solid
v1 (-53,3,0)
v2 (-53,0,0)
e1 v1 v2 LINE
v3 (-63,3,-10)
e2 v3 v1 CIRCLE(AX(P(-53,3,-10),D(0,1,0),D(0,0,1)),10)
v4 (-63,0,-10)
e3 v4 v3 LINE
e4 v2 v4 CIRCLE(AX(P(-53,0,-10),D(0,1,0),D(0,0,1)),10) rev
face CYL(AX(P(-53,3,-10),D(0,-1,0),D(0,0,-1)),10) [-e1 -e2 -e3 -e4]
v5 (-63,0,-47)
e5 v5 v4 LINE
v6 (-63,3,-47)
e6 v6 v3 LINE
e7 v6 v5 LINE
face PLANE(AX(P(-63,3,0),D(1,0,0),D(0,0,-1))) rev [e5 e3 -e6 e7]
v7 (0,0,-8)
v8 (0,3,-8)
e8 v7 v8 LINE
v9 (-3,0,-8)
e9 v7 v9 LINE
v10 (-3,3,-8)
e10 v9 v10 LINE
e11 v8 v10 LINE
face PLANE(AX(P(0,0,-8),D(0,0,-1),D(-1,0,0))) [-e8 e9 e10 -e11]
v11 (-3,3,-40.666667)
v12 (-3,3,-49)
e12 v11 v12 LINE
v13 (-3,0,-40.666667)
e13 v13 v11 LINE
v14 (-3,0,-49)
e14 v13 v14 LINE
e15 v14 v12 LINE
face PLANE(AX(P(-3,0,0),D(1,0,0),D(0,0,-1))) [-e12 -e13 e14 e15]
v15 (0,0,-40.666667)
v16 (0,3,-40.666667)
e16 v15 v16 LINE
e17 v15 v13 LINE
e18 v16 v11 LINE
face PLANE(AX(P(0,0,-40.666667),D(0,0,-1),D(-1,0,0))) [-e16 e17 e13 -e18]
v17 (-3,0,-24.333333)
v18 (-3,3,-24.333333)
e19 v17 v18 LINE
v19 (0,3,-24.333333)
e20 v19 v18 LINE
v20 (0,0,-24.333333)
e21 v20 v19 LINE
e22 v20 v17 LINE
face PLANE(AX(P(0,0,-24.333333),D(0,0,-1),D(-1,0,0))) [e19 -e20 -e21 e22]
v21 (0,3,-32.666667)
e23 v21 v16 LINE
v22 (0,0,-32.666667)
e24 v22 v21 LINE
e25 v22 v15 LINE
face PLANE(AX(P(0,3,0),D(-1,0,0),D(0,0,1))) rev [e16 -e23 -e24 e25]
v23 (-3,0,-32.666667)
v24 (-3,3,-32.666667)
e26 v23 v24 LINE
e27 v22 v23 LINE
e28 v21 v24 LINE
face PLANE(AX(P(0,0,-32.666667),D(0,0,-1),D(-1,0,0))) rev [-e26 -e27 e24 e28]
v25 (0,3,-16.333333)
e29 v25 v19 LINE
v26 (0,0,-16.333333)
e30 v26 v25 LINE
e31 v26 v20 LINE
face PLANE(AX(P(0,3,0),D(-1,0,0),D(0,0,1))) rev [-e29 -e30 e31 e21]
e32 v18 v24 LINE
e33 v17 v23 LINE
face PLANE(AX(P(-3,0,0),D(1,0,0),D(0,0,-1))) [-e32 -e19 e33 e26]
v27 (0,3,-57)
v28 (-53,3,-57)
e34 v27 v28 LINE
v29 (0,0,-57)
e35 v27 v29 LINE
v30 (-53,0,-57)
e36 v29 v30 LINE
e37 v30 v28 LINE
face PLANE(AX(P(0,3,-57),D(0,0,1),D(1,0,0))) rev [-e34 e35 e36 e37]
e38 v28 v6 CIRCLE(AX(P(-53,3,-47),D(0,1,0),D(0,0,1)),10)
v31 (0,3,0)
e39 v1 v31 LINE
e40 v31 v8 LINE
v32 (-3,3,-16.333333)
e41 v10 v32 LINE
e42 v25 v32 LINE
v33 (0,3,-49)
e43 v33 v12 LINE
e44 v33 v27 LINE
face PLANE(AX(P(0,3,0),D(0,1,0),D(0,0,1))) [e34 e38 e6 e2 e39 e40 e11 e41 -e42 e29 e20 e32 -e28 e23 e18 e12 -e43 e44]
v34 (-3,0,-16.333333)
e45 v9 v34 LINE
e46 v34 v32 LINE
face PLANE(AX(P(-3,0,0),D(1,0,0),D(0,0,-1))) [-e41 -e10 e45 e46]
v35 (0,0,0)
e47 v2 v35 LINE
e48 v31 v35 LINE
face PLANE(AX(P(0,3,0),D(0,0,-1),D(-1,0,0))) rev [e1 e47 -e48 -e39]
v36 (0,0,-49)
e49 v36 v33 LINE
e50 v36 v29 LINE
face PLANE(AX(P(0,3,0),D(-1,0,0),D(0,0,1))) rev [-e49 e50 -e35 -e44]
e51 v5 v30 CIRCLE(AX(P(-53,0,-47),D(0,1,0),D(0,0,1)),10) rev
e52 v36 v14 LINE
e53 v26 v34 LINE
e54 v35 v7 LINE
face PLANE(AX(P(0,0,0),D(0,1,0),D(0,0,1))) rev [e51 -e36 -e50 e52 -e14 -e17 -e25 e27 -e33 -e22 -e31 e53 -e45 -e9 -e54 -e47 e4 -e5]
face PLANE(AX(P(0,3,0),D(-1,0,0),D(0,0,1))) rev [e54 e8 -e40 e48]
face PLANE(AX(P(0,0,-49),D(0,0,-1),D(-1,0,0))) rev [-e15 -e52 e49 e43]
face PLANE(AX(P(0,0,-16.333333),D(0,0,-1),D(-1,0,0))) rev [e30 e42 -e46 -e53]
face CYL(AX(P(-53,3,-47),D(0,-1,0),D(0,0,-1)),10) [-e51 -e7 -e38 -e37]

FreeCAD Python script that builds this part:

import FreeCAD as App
import Part
import Sketcher
Q = App.Units.Quantity


def edges_at(feature, points):
    """Names of the edges that pass closest to the given points."""
    edges = feature.Shape.Edges
    near = lambda p: min(range(len(edges)), key=lambda i: edges[i].distToShape(Part.Vertex(*p))[0])
    return sorted({f"Edge{near(p) + 1}" for p in points})


def add_polygon(sketch, points):
    """Adds a closed chain of lines whose ends are joined by coincident constraints."""
    first, n = sketch.GeometryCount, len(points)
    for a, b in zip(points, points[1:] + points[:1]):
        sketch.addGeometry(Part.LineSegment(App.Vector(*a, 0), App.Vector(*b, 0)), False)
    for i in range(n):
        sketch.addConstraint(Sketcher.Constraint("Coincident", first + i, 2, first + (i + 1) % n, 1))

doc = App.newDocument("Part")
body = doc.addObject("PartDesign::Body", "Body")

# Sketch on XZ plane
sketch1 = doc.addObject("Sketcher::SketchObject", "Sketch")
body.addObject(sketch1)
sketch1.AttachmentSupport = (doc.XZ_Plane, [""])
sketch1.MapMode = "FlatFace"
add_polygon(sketch1, [(-63, -57), (-63, 0), (0, 0), (0, -57)])  # lines 0-3
sketch1.addConstraint([
    Sketcher.Constraint("Vertical", 0),
    Sketcher.Constraint("Horizontal", 1),
    Sketcher.Constraint("Vertical", 2),
    Sketcher.Constraint("Horizontal", 3),
    Sketcher.Constraint("Coincident", 1, 2, -1, 1),
    Sketcher.Constraint("DistanceX", 1, 1, 1, 2, Q("63 mm")),
    Sketcher.Constraint("DistanceY", 0, 1, 0, 2, Q("57 mm")),
])
pad1 = doc.addObject("PartDesign::Pad", "Pad")
body.addObject(pad1)
pad1.Profile = sketch1
pad1.Length = 3
pad1.Reversed = True

# Sketch on XZ plane
sketch2 = doc.addObject("Sketcher::SketchObject", "Sketch001")
body.addObject(sketch2)
sketch2.AttachmentSupport = (doc.XZ_Plane, [""])
sketch2.MapMode = "FlatFace"
sketch2.AttachmentOffset = App.Placement(App.Vector(0, 0, -3), App.Rotation())
add_polygon(sketch2, [(-3, -16.333333), (-3, -8), (0, -8), (0, -16.333333)])  # lines 0-3
add_polygon(sketch2, [(-3, -32.666667), (-3, -24.333333), (0, -24.333333), (0, -32.666667)])  # lines 4-7
add_polygon(sketch2, [(-3, -49), (-3, -40.666667), (0, -40.666667), (0, -49)])  # lines 8-11
sketch2.addConstraint([
    Sketcher.Constraint("Vertical", 0),
    Sketcher.Constraint("Horizontal", 1),
    Sketcher.Constraint("Vertical", 2),
    Sketcher.Constraint("Horizontal", 3),
    Sketcher.Constraint("Vertical", 4),
    Sketcher.Constraint("Horizontal", 5),
    Sketcher.Constraint("Vertical", 6),
    Sketcher.Constraint("Horizontal", 7),
    Sketcher.Constraint("Vertical", 8),
    Sketcher.Constraint("Horizontal", 9),
    Sketcher.Constraint("Vertical", 10),
    Sketcher.Constraint("Horizontal", 11),
    Sketcher.Constraint("PointOnObject", 1, 2, -2),
    Sketcher.Constraint("PointOnObject", 5, 2, -2),
    Sketcher.Constraint("PointOnObject", 9, 2, -2),
    Sketcher.Constraint("Vertical", 3, 2, 4, 2),
    Sketcher.Constraint("Vertical", 7, 2, 8, 2),
    Sketcher.Constraint("Equal", 2, 4),
    Sketcher.Constraint("Equal", 6, 8),
    Sketcher.Constraint("DistanceX", 1, 1, 1, 2, Q("3 mm")),
    Sketcher.Constraint("DistanceY", 0, 2, -1, 1, Q("8 mm")),
    Sketcher.Constraint("DistanceY", 10, 2, -1, 1, Q("49 mm")),
    Sketcher.Constraint("DistanceY", 4, 2, 3, 2, Q("8 mm")),
    Sketcher.Constraint("DistanceY", 8, 2, 7, 2, Q("8 mm")),
])
pocket1 = doc.addObject("PartDesign::Pocket", "Pocket")
body.addObject(pocket1)
pocket1.Profile = sketch2
pocket1.Length = 3
pocket1.Reversed = True
doc.recompute()

fillet = doc.addObject("PartDesign::Fillet", "Fillet")
body.addObject(fillet)
fillet.Base = (pocket1, edges_at(pocket1, [(-63, 1.5, 0), (-63, 1.5, -57)]))
fillet.Radius = 10

doc.recompute()
